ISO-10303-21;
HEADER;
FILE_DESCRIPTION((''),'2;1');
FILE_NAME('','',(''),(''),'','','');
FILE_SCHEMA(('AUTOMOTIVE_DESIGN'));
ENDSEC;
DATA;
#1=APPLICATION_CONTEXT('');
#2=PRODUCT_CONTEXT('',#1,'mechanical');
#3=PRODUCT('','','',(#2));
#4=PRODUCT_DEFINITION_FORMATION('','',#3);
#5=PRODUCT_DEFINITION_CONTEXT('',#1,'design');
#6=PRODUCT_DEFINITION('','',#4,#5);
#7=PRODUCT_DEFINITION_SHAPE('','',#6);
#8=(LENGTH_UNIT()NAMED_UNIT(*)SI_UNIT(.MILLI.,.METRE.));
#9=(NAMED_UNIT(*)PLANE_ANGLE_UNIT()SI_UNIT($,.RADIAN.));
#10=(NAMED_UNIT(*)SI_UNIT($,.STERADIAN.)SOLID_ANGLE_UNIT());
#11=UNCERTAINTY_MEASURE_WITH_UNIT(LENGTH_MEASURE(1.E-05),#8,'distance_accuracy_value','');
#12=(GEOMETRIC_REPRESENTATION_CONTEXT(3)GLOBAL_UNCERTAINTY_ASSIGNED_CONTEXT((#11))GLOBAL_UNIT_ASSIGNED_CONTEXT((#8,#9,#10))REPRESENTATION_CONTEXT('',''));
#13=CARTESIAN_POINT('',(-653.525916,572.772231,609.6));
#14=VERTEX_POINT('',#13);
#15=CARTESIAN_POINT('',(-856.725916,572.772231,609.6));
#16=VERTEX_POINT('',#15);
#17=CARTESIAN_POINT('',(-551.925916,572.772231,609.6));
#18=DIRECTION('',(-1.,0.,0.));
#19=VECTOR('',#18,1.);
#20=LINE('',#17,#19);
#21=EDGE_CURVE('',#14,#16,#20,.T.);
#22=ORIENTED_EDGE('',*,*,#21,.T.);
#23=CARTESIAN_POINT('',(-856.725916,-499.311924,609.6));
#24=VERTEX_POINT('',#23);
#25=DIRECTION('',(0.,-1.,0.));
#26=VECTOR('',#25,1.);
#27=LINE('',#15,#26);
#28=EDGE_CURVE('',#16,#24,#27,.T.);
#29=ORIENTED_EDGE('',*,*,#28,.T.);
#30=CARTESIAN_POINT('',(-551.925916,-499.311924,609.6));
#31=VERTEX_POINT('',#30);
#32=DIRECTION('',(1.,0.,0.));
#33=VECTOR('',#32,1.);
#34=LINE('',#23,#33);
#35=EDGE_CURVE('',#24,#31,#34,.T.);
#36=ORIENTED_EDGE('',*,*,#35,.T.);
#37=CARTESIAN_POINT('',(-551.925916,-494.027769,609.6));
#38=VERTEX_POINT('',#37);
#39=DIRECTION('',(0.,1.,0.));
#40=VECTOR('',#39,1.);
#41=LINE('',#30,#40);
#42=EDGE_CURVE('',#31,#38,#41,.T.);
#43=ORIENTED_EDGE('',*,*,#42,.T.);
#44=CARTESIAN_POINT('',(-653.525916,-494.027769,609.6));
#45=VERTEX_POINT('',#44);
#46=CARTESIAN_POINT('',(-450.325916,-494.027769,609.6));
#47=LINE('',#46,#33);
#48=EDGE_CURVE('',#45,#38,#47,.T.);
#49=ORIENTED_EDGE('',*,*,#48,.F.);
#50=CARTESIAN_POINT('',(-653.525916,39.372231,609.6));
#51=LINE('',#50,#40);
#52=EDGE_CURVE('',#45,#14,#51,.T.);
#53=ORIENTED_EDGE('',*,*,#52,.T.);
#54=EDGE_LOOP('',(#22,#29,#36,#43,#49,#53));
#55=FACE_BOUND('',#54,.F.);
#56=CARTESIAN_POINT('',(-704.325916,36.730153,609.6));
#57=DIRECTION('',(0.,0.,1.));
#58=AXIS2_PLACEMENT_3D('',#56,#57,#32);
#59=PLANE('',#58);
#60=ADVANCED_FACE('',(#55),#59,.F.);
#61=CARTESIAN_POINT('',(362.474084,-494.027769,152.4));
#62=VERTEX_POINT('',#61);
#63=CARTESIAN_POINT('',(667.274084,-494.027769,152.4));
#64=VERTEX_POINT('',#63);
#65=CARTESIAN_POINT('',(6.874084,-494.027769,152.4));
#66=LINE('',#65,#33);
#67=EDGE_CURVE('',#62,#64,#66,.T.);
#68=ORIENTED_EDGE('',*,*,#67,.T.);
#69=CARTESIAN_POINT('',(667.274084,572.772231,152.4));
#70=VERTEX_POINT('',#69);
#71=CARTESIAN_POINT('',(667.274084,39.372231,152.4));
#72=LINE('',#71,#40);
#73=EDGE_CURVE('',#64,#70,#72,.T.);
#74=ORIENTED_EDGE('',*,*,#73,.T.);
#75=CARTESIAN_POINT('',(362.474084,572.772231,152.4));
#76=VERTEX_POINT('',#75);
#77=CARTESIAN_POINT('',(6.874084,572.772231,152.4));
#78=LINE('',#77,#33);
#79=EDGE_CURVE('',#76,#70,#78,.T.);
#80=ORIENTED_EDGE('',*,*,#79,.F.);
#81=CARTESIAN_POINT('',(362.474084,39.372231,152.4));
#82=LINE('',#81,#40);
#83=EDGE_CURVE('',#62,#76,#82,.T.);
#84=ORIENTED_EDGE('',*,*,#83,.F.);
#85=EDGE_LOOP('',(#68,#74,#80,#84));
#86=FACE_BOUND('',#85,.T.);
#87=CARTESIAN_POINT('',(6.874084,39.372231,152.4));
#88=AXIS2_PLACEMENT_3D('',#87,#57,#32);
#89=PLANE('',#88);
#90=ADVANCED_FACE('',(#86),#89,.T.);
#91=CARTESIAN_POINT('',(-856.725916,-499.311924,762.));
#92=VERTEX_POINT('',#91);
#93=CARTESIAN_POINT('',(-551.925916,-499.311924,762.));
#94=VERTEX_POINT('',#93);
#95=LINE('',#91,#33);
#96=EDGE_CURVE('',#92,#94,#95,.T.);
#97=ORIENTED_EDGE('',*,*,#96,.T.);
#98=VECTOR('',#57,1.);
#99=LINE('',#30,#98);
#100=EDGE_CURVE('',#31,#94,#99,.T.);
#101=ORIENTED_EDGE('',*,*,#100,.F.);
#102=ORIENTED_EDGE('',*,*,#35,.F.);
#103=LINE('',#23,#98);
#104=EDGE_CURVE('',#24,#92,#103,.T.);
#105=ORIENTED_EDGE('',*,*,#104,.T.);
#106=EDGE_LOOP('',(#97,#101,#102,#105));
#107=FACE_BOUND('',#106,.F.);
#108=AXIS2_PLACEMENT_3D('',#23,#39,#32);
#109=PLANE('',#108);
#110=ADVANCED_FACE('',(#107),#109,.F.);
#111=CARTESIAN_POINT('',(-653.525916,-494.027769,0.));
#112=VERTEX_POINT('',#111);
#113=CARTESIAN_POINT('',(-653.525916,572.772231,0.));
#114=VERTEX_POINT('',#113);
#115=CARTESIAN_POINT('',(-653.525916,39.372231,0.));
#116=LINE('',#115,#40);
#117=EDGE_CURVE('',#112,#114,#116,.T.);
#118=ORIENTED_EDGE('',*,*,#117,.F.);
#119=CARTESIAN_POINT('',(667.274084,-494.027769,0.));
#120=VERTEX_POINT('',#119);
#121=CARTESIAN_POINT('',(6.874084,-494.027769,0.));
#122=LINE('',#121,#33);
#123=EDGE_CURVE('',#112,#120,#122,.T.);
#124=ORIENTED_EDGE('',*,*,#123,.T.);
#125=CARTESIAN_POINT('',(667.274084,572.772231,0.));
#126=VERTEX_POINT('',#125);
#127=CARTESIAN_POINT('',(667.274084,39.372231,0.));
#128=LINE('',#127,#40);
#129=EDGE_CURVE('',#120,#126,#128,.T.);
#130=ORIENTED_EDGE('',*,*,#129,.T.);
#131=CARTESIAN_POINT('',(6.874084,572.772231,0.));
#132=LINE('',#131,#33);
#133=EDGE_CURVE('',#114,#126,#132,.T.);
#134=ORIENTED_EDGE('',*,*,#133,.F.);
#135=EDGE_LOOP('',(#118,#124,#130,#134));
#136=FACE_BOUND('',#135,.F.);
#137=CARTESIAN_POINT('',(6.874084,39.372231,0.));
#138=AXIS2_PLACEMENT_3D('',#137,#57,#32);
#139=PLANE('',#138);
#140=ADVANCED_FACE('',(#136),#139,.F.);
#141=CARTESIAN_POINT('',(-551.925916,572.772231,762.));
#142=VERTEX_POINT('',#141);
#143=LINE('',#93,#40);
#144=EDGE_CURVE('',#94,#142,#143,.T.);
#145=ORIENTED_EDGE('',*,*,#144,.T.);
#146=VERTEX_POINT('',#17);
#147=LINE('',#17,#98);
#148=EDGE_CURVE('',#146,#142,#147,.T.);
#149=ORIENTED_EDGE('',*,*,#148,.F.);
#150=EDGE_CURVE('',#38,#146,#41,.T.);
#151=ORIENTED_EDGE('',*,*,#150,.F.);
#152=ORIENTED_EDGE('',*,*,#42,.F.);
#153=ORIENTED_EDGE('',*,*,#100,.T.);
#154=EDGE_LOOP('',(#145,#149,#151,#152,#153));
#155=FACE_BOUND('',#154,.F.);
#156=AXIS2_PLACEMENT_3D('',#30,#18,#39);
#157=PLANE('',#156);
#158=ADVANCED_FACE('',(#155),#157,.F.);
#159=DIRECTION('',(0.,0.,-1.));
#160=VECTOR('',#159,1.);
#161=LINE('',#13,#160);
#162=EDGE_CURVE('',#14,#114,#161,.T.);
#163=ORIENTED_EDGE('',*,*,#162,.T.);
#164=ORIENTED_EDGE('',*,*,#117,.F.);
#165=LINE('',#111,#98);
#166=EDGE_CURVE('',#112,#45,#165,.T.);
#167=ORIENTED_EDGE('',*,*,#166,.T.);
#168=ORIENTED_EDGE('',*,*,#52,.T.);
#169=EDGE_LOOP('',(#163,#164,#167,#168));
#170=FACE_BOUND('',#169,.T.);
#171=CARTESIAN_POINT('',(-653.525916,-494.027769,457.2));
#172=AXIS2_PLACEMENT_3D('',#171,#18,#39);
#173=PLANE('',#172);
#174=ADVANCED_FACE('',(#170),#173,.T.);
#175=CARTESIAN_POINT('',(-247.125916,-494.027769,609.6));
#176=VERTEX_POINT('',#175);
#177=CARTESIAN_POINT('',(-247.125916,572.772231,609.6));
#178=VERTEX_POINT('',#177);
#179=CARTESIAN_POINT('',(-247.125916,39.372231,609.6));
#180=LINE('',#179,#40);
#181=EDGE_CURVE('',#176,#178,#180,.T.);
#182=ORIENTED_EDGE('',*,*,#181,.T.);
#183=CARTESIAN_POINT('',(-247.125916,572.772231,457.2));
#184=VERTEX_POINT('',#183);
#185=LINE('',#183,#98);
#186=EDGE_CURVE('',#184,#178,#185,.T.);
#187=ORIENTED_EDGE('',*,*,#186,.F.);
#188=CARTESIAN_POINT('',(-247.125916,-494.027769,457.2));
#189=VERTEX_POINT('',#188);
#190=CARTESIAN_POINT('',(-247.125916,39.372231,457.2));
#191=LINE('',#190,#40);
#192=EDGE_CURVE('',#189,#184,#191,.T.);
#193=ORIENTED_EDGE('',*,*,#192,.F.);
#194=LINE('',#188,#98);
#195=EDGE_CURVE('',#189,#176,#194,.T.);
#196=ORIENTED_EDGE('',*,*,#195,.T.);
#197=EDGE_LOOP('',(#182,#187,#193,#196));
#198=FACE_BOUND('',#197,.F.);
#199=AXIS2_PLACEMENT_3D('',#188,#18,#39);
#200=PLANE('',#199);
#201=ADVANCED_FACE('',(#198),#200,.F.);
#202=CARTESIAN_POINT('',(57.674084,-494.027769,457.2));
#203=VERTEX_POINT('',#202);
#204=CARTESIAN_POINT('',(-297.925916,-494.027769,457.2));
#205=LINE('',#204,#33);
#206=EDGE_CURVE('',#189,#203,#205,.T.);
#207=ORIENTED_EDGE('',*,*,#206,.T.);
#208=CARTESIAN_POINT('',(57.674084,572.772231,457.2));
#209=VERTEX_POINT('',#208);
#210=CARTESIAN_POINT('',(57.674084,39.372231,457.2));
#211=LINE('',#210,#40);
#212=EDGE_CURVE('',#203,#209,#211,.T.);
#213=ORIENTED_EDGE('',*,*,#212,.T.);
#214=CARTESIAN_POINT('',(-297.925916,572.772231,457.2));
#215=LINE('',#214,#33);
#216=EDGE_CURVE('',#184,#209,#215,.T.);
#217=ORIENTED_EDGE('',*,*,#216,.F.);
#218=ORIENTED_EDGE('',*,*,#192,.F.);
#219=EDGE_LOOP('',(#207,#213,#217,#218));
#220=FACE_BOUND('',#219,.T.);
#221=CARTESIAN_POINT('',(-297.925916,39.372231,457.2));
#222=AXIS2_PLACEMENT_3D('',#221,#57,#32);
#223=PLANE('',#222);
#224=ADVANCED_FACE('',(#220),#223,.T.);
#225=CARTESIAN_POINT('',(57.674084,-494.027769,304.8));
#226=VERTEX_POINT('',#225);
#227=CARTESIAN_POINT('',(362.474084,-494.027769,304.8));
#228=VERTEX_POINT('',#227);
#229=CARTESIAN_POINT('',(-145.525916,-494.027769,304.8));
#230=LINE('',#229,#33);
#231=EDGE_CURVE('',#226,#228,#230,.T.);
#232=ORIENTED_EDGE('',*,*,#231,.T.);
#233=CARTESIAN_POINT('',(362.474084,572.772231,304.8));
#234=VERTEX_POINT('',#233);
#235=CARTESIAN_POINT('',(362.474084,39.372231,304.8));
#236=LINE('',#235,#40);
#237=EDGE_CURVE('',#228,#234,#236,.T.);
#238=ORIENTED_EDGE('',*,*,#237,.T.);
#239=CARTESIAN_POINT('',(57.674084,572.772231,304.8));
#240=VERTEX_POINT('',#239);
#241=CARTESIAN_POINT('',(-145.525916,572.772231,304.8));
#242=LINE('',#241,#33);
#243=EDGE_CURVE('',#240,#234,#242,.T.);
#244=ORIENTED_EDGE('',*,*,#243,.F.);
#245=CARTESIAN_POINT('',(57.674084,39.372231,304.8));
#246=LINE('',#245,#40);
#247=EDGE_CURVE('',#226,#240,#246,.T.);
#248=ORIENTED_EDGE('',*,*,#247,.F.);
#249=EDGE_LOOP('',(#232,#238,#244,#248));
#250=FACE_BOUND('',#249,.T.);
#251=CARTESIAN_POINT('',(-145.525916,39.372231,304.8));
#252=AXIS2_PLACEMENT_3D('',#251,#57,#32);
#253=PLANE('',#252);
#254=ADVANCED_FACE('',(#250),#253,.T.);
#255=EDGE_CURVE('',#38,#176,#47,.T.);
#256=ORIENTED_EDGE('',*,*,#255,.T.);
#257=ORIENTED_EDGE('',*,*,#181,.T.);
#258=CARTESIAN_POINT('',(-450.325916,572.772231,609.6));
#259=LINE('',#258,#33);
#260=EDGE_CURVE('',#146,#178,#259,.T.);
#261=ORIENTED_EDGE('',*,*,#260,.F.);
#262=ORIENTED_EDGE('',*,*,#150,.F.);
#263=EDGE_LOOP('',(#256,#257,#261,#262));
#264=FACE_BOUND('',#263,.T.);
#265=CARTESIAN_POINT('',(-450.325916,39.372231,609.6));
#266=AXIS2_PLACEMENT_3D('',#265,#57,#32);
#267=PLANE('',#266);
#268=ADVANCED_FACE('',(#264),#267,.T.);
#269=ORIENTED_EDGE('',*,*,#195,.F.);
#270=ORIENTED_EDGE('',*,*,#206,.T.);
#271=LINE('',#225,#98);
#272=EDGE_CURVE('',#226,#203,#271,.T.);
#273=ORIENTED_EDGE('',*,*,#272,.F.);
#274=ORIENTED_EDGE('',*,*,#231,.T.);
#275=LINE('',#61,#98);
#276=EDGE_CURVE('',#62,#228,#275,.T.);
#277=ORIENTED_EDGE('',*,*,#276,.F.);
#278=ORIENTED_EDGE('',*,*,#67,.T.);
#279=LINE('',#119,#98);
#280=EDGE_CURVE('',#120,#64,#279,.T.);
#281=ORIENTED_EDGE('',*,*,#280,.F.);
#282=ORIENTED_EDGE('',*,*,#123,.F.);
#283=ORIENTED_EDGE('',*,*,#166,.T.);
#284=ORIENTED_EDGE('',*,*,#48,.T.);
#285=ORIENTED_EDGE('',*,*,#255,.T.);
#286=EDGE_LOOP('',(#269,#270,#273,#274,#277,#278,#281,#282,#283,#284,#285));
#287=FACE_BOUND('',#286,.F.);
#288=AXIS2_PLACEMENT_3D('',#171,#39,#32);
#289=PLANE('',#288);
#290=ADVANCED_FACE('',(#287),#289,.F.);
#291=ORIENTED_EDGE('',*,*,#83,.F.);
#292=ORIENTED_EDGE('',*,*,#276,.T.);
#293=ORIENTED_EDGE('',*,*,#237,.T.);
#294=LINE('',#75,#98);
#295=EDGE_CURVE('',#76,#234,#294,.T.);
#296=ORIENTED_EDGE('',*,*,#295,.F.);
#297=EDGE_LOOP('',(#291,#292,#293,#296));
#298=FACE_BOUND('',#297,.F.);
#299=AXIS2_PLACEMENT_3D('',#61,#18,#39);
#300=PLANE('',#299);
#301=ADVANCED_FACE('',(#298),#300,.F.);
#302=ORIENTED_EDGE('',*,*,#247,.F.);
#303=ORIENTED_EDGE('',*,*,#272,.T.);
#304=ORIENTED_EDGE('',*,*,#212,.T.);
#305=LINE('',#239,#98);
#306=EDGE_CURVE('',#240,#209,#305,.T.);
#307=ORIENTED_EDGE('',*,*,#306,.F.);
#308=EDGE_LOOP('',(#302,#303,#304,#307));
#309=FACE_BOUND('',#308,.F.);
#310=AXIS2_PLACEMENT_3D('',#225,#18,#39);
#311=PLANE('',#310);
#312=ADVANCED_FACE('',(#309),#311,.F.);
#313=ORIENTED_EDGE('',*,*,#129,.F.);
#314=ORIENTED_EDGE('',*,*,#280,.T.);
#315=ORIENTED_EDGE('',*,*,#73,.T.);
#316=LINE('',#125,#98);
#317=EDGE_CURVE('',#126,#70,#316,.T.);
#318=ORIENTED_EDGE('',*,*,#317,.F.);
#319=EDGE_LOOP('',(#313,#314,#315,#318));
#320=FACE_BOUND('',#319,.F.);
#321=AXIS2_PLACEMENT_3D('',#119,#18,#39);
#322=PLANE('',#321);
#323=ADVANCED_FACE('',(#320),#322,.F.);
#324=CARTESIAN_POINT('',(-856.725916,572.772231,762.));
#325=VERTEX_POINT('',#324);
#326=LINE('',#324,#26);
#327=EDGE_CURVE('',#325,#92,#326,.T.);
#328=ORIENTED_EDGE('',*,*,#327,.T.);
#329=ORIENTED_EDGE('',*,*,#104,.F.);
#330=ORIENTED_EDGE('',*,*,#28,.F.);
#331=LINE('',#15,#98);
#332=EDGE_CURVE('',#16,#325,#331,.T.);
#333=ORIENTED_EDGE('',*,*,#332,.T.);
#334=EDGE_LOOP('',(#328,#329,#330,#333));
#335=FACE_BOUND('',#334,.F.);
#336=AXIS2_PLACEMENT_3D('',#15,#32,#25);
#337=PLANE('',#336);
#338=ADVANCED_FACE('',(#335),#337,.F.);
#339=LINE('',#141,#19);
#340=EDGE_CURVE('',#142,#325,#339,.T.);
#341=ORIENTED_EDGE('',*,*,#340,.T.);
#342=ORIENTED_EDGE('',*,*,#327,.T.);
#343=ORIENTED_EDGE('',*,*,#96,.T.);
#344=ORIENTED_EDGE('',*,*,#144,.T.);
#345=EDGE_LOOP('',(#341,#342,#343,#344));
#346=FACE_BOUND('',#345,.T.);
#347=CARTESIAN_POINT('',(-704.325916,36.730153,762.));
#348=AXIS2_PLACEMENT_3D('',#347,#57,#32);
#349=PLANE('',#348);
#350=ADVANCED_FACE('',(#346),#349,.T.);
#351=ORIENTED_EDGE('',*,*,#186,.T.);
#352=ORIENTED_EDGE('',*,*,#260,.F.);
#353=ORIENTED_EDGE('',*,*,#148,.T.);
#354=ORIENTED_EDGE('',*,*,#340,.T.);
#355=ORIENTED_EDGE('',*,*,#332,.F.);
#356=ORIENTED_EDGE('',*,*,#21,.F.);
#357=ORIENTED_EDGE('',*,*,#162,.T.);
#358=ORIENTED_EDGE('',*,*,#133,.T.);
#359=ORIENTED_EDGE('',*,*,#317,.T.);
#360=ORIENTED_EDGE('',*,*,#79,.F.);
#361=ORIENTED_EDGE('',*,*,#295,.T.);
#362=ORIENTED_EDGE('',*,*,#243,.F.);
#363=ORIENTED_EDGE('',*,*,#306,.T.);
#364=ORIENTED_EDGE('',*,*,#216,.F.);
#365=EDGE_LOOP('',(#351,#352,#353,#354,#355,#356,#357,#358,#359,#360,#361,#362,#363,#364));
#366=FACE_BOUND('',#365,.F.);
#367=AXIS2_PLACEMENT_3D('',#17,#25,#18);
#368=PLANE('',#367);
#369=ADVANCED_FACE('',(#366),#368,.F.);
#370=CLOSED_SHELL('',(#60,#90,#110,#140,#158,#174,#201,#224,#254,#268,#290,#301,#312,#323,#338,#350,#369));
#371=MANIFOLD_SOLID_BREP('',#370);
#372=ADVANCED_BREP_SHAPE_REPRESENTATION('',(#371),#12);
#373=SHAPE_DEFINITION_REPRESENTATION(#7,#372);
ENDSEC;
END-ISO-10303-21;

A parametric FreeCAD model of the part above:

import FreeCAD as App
import Part
import Sketcher

V = App.Vector
Q = App.Units.Quantity


def add_polygon(sketch, points):
    """Adds a closed chain of lines whose ends are joined by coincident constraints."""
    first, n = sketch.GeometryCount, len(points)
    for a, b in zip(points, points[1:] + points[:1]):
        sketch.addGeometry(Part.LineSegment(App.Vector(*a, 0), App.Vector(*b, 0)), False)
    for i in range(n):
        sketch.addConstraint(Sketcher.Constraint("Coincident", first + i, 2, first + (i + 1) % n, 1))

doc = App.newDocument("Part")
body = doc.addObject("PartDesign::Body", "Body")

# Sketch on XY plane
sketch1 = body.newObject("Sketcher::SketchObject", "Sketch")
sketch1.AttachmentSupport = (doc.getObject("XY_Plane"), [""])
sketch1.MapMode = "FlatFace"
add_polygon(sketch1, [(-654, 573), (-654, -494), (667, -494), (667, 573)])  # lines 0-3
sketch1.addConstraint([
    Sketcher.Constraint("Vertical", 0),
    Sketcher.Constraint("Horizontal", 1),
    Sketcher.Constraint("Vertical", 2),
    Sketcher.Constraint("Horizontal", 3),
    Sketcher.Constraint("DistanceX", 1, 1, 1, 2, Q("52 in")),
    Sketcher.Constraint("DistanceY", 0, 2, 0, 1, Q("42 in")),
    Sketcher.Constraint("DistanceY", 0, 2, -1, 1, Q("494.027769 mm")),
    Sketcher.Constraint("DistanceX", 0, 2, -1, 1, Q("653.525916 mm")),
])
pad1 = body.newObject("PartDesign::Pad", "Pad")
pad1.Profile = sketch1
pad1.Length = Q("6 in")

# Sketch on XY plane
sketch2 = body.newObject("Sketcher::SketchObject", "Sketch001")
sketch2.AttachmentSupport = (doc.getObject("XY_Plane"), [""])
sketch2.MapMode = "FlatFace"
sketch2.AttachmentOffset = App.Placement(V(0, 0, 6 * 25.4), App.Rotation())
add_polygon(sketch2, [(-654, 573), (-654, -494), (362, -494), (362, 573)])  # lines 0-3
sketch2.addConstraint([
    Sketcher.Constraint("Vertical", 0),
    Sketcher.Constraint("Horizontal", 1),
    Sketcher.Constraint("Vertical", 2),
    Sketcher.Constraint("Horizontal", 3),
    Sketcher.Constraint("DistanceX", 1, 1, 1, 2, Q("40 in")),
    Sketcher.Constraint("DistanceY", 0, 2, 0, 1, Q("42 in")),
    Sketcher.Constraint("DistanceY", 0, 2, -1, 1, Q("494.027769 mm")),
    Sketcher.Constraint("DistanceX", 0, 2, -1, 1, Q("653.525916 mm")),
])
pad2 = body.newObject("PartDesign::Pad", "Pad001")
pad2.Profile = sketch2
pad2.Length = Q("6 in")

# Sketch on XY plane
sketch3 = body.newObject("Sketcher::SketchObject", "Sketch002")
sketch3.AttachmentSupport = (doc.getObject("XY_Plane"), [""])
sketch3.MapMode = "FlatFace"
sketch3.AttachmentOffset = App.Placement(V(0, 0, 12 * 25.4), App.Rotation())
add_polygon(sketch3, [(-654, 573), (-654, -494), (58, -494), (58, 573)])  # lines 0-3
sketch3.addConstraint([
    Sketcher.Constraint("Vertical", 0),
    Sketcher.Constraint("Horizontal", 1),
    Sketcher.Constraint("Vertical", 2),
    Sketcher.Constraint("Horizontal", 3),
    Sketcher.Constraint("DistanceX", 1, 1, 1, 2, Q("28 in")),
    Sketcher.Constraint("DistanceY", 0, 2, 0, 1, Q("42 in")),
    Sketcher.Constraint("DistanceY", 0, 2, -1, 1, Q("494.027769 mm")),
    Sketcher.Constraint("DistanceX", 0, 2, -1, 1, Q("653.525916 mm")),
])
pad3 = body.newObject("PartDesign::Pad", "Pad002")
pad3.Profile = sketch3
pad3.Length = Q("6 in")

# Sketch on XY plane
sketch4 = body.newObject("Sketcher::SketchObject", "Sketch003")
sketch4.AttachmentSupport = (doc.getObject("XY_Plane"), [""])
sketch4.MapMode = "FlatFace"
sketch4.AttachmentOffset = App.Placement(V(0, 0, 18 * 25.4), App.Rotation())
add_polygon(sketch4, [(-654, 573), (-654, -494), (-247, -494), (-247, 573)])  # lines 0-3
sketch4.addConstraint([
    Sketcher.Constraint("Vertical", 0),
    Sketcher.Constraint("Horizontal", 1),
    Sketcher.Constraint("Vertical", 2),
    Sketcher.Constraint("Horizontal", 3),
    Sketcher.Constraint("DistanceX", 1, 1, 1, 2, Q("16 in")),
    Sketcher.Constraint("DistanceY", 0, 2, 0, 1, Q("42 in")),
    Sketcher.Constraint("DistanceY", 0, 2, -1, 1, Q("494.027769 mm")),
    Sketcher.Constraint("DistanceX", 0, 2, -1, 1, Q("653.525916 mm")),
])
pad4 = body.newObject("PartDesign::Pad", "Pad003")
pad4.Profile = sketch4
pad4.Length = Q("6 in")

# Sketch on XY plane
sketch5 = body.newObject("Sketcher::SketchObject", "Sketch004")
sketch5.AttachmentSupport = (doc.getObject("XY_Plane"), [""])
sketch5.MapMode = "FlatFace"
sketch5.AttachmentOffset = App.Placement(V(0, 0, 24 * 25.4), App.Rotation())
add_polygon(sketch5, [(-552, -499), (-552, 573), (-857, 573), (-857, -499)])  # lines 0-3
sketch5.addConstraint([
    Sketcher.Constraint("Vertical", 0),
    Sketcher.Constraint("Horizontal", 1),
    Sketcher.Constraint("Vertical", 2),
    Sketcher.Constraint("Horizontal", 3),
    Sketcher.Constraint("DistanceX", 1, 2, 1, 1, Q("12 in")),
    Sketcher.Constraint("DistanceY", 0, 1, 0, 2, Q("1072.084155 mm")),
    Sketcher.Constraint("DistanceY", -1, 1, 0, 2, Q("572.772231 mm")),
    Sketcher.Constraint("DistanceX", 0, 2, -1, 1, Q("551.925916 mm")),
])
pad5 = body.newObject("PartDesign::Pad", "Pad004")
pad5.Profile = sketch5
pad5.Length = Q("6 in")

doc.recompute()
